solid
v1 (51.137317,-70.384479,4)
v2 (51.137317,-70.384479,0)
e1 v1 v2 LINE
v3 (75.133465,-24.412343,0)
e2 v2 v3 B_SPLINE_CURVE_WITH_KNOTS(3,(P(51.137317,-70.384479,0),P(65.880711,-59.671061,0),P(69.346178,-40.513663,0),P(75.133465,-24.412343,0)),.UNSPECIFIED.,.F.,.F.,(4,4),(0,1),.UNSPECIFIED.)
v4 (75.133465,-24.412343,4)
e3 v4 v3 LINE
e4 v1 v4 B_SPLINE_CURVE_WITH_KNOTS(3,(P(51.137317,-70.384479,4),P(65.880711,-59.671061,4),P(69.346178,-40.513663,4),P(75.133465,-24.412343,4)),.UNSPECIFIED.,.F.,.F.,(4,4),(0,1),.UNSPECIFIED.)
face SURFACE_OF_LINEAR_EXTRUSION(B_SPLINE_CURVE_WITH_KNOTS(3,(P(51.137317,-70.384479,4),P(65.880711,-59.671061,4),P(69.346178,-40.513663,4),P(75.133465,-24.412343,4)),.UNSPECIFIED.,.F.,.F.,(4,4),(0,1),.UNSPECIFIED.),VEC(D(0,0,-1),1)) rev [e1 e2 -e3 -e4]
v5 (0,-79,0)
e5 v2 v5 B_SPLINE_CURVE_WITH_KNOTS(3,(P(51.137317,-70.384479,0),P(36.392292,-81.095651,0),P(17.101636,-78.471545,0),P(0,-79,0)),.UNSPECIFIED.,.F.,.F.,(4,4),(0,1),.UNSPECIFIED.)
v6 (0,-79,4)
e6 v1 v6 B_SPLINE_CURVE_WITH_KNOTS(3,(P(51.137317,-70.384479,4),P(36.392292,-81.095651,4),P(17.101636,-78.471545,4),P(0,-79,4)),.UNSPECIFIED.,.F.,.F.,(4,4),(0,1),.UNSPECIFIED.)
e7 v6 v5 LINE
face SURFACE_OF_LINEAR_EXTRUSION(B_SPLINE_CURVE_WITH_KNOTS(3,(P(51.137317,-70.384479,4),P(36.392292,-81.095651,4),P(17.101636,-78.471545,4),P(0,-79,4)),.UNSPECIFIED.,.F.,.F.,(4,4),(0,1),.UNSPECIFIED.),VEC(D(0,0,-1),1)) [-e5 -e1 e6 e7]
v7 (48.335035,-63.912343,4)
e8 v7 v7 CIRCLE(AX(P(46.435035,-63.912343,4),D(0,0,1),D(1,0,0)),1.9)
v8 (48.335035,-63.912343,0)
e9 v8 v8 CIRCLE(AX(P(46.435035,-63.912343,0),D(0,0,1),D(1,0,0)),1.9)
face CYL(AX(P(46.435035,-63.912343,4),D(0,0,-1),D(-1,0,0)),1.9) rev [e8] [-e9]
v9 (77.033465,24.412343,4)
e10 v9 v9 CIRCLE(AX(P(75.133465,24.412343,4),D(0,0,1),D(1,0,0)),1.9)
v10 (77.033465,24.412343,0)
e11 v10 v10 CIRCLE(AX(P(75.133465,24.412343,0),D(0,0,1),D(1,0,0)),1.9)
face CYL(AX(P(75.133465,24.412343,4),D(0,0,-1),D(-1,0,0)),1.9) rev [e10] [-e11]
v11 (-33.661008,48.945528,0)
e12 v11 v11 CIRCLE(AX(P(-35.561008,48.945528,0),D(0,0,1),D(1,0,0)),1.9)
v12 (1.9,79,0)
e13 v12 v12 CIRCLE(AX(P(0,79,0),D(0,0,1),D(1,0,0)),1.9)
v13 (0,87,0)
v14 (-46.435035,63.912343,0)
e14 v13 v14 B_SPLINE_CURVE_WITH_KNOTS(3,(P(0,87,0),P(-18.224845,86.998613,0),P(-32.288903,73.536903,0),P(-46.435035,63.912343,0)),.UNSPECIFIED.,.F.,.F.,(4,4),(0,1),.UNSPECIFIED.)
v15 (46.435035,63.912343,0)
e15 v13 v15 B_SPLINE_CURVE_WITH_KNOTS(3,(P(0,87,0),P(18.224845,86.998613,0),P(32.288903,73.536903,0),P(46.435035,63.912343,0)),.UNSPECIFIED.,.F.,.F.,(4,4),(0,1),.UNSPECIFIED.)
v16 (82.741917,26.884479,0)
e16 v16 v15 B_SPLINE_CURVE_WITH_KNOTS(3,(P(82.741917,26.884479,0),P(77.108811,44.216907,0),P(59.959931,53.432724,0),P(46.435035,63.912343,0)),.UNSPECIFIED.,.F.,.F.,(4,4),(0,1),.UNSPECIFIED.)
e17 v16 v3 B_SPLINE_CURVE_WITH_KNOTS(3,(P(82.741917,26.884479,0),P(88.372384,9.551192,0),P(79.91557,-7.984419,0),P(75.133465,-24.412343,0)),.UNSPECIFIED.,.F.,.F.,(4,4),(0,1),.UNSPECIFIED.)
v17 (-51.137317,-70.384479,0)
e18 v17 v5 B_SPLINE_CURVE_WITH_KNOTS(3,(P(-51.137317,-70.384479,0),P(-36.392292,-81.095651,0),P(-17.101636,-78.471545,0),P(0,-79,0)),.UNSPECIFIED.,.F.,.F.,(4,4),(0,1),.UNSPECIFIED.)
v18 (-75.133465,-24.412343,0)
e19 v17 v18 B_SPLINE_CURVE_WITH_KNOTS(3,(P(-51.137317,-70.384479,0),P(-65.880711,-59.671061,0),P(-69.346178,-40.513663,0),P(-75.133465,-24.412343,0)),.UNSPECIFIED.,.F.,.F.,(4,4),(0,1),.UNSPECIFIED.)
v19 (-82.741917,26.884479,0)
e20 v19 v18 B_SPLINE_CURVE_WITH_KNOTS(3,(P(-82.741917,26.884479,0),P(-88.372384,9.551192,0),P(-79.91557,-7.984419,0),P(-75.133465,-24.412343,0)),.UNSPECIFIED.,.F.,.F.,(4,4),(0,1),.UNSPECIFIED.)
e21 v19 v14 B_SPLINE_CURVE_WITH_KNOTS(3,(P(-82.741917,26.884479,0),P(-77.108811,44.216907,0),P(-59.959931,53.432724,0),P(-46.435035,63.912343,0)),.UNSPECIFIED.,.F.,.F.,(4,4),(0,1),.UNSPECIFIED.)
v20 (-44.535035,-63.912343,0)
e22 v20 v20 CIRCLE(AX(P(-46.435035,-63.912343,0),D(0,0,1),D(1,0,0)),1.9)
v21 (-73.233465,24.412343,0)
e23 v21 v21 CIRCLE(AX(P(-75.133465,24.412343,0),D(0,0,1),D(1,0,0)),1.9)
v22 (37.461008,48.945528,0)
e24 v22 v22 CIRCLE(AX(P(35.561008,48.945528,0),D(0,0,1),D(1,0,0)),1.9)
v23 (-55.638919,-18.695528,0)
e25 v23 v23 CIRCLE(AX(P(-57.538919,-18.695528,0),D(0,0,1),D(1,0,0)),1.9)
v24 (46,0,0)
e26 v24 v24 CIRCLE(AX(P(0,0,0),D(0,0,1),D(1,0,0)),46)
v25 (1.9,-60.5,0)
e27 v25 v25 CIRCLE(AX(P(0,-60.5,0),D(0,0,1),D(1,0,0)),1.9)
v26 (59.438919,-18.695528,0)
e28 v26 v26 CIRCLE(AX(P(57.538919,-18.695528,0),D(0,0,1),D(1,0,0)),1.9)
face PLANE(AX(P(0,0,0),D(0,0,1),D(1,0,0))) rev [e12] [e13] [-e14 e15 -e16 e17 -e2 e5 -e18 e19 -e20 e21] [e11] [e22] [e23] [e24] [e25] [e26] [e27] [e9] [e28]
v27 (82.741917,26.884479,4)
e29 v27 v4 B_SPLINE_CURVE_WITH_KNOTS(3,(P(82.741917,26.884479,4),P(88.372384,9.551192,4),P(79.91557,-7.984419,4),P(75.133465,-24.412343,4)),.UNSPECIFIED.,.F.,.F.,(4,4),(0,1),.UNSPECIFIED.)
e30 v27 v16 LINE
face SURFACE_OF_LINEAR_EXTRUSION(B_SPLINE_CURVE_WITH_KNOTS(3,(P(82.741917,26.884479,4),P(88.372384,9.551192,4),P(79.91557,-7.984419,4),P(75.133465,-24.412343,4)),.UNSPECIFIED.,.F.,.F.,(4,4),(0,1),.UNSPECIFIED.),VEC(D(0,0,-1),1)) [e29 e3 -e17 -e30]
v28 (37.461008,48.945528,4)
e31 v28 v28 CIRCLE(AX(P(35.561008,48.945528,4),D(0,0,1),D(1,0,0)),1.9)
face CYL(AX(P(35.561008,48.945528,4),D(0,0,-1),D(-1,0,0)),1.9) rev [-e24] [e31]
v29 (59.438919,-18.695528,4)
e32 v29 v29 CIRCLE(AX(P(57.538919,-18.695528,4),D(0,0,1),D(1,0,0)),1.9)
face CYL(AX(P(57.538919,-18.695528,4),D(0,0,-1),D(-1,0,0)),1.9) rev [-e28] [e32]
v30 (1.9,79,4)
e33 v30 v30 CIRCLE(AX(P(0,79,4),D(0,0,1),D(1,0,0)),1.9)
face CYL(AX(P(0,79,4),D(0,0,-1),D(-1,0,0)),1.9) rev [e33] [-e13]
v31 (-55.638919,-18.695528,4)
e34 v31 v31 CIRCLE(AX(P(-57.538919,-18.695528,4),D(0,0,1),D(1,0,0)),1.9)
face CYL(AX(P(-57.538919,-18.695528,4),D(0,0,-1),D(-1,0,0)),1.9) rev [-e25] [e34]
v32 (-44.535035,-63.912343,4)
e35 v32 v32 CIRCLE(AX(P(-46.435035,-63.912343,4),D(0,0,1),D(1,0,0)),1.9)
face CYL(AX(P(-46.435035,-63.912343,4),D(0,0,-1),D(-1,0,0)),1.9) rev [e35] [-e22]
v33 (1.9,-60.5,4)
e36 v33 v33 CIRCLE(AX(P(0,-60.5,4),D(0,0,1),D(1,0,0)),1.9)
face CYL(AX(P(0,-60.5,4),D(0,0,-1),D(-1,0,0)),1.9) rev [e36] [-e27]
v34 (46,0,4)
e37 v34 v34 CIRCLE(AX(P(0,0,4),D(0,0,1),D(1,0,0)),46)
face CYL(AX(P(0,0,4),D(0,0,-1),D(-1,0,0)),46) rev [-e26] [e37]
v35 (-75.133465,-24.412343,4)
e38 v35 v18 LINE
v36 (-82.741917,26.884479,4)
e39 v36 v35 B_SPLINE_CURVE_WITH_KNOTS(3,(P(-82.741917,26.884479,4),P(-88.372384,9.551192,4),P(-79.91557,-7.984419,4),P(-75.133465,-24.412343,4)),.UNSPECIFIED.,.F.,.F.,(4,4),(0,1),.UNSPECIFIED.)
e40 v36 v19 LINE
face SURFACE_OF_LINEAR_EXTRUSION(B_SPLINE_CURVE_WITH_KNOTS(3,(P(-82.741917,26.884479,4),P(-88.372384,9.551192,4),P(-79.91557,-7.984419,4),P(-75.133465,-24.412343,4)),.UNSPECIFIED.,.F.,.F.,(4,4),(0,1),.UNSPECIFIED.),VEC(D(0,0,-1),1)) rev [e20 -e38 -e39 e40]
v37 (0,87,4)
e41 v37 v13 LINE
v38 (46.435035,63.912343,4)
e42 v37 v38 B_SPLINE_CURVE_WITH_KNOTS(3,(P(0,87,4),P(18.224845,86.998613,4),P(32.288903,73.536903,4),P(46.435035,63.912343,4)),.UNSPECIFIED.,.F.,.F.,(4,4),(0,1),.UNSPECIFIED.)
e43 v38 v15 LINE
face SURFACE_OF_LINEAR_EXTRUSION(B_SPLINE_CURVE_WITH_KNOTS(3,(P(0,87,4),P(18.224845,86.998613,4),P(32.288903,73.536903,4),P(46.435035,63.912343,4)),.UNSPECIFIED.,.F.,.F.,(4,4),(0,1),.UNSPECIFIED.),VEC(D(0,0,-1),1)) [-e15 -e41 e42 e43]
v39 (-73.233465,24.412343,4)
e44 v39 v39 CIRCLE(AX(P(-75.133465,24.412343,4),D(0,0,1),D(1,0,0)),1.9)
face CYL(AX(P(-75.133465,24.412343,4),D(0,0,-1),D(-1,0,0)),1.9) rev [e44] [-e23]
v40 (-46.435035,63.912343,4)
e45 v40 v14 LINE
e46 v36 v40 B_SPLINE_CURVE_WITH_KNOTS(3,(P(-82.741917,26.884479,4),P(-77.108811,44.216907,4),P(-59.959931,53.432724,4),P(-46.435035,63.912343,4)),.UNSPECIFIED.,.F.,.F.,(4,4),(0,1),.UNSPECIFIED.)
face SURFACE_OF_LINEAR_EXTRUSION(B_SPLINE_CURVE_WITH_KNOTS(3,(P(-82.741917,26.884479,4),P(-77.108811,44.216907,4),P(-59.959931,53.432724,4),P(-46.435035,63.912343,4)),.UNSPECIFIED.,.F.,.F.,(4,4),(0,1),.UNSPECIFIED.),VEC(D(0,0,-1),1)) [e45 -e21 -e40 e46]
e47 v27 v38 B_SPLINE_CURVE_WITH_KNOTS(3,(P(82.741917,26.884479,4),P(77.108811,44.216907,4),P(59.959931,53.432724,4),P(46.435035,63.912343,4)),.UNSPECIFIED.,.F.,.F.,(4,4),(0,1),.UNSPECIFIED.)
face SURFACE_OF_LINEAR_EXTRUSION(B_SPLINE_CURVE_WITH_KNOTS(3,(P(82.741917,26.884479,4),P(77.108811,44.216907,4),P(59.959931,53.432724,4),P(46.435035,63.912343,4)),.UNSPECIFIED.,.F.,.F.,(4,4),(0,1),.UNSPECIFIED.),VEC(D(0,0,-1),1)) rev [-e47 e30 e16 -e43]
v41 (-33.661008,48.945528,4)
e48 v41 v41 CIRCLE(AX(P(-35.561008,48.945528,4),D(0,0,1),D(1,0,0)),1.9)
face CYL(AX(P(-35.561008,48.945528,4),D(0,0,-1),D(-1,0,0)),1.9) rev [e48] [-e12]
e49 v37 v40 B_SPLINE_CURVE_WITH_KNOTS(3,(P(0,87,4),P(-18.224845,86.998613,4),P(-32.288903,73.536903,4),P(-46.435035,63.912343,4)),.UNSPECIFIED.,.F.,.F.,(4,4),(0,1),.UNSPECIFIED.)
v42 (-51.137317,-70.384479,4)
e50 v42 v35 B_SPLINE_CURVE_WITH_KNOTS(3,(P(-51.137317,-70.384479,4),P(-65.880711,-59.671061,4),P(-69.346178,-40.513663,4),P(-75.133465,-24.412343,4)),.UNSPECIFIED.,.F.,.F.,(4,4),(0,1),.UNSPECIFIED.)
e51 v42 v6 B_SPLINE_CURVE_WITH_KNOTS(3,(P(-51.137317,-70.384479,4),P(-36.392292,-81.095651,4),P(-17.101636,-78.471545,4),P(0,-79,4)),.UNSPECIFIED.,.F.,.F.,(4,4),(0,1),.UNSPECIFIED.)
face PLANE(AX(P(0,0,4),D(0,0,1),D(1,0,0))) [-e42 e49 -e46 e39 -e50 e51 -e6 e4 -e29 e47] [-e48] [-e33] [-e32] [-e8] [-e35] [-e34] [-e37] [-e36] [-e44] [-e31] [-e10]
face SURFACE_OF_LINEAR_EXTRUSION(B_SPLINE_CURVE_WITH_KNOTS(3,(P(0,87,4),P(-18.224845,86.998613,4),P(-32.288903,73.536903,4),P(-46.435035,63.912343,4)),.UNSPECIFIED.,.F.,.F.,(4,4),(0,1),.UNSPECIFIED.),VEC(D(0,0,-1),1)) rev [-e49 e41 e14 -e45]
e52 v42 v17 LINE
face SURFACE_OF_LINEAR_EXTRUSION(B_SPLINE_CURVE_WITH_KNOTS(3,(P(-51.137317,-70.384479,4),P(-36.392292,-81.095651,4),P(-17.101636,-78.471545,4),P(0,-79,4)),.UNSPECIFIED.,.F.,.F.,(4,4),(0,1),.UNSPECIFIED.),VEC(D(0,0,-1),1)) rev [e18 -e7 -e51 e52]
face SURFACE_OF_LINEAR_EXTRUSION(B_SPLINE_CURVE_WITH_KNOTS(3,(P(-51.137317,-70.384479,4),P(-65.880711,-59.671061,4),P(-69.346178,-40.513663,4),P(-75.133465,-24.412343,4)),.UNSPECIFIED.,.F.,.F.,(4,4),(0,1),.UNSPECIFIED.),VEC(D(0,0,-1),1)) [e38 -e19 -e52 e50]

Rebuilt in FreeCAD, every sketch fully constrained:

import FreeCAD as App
import Part
import Sketcher

doc = App.newDocument("Part")
body = doc.addObject("PartDesign::Body", "Body")

sketch1 = doc.addObject("Sketcher::SketchObject", "Sketch")
body.addObject(sketch1)
sketch1.AttachmentSupport = (doc.XY_Plane, [""])
sketch1.MapMode = "FlatFace"
sketch1.addGeometry([
    Part.BSplineCurve([App.Vector(0, 87, 0), App.Vector(18.224845, 86.998613, 0), App.Vector(32.288903, 73.536903, 0), App.Vector(46.435035, 63.912343, 0)], [4, 4], [0, 1], False, 3, [1, 1, 1, 1], False),
    Part.BSplineCurve([App.Vector(0, 87, 0), App.Vector(-18.224845, 86.998613, 0), App.Vector(-32.288903, 73.536903, 0), App.Vector(-46.435035, 63.912343, 0)], [4, 4], [0, 1], False, 3, [1, 1, 1, 1], False),
    Part.BSplineCurve([App.Vector(-82.741917, 26.884479, 0), App.Vector(-77.108811, 44.216907, 0), App.Vector(-59.959931, 53.432724, 0), App.Vector(-46.435035, 63.912343, 0)], [4, 4], [0, 1], False, 3, [1, 1, 1, 1], False),
    Part.BSplineCurve([App.Vector(-82.741917, 26.884479, 0), App.Vector(-88.372384, 9.551192, 0), App.Vector(-79.91557, -7.984419, 0), App.Vector(-75.133465, -24.412343, 0)], [4, 4], [0, 1], False, 3, [1, 1, 1, 1], False),
    Part.BSplineCurve([App.Vector(-51.137317, -70.384479, 0), App.Vector(-65.880711, -59.671061, 0), App.Vector(-69.346178, -40.513663, 0), App.Vector(-75.133465, -24.412343, 0)], [4, 4], [0, 1], False, 3, [1, 1, 1, 1], False),
    Part.BSplineCurve([App.Vector(-51.137317, -70.384479, 0), App.Vector(-36.392292, -81.095651, 0), App.Vector(-17.101636, -78.471545, 0), App.Vector(0, -79, 0)], [4, 4], [0, 1], False, 3, [1, 1, 1, 1], False),
    Part.BSplineCurve([App.Vector(51.137317, -70.384479, 0), App.Vector(36.392292, -81.095651, 0), App.Vector(17.101636, -78.471545, 0), App.Vector(0, -79, 0)], [4, 4], [0, 1], False, 3, [1, 1, 1, 1], False),
    Part.BSplineCurve([App.Vector(51.137317, -70.384479, 0), App.Vector(65.880711, -59.671061, 0), App.Vector(69.346178, -40.513663, 0), App.Vector(75.133465, -24.412343, 0)], [4, 4], [0, 1], False, 3, [1, 1, 1, 1], False),
    Part.BSplineCurve([App.Vector(82.741917, 26.884479, 0), App.Vector(88.372384, 9.551192, 0), App.Vector(79.91557, -7.984419, 0), App.Vector(75.133465, -24.412343, 0)], [4, 4], [0, 1], False, 3, [1, 1, 1, 1], False),
    Part.BSplineCurve([App.Vector(82.741917, 26.884479, 0), App.Vector(77.108811, 44.216907, 0), App.Vector(59.959931, 53.432724, 0), App.Vector(46.435035, 63.912343, 0)], [4, 4], [0, 1], False, 3, [1, 1, 1, 1], False),
    Part.Circle(App.Vector(46.435035, -63.912343, 0), App.Vector(0, 0, 1), 1.9),
    Part.Circle(App.Vector(57.538919, -18.695528, 0), App.Vector(0, 0, 1), 1.9),
    Part.Circle(App.Vector(0, 0, 0), App.Vector(0, 0, 1), 46),
    Part.Circle(App.Vector(0, -60.5, 0), App.Vector(0, 0, 1), 1.9),
    Part.Circle(App.Vector(-46.435035, -63.912343, 0), App.Vector(0, 0, 1), 1.9),
    Part.Circle(App.Vector(-57.538919, -18.695528, 0), App.Vector(0, 0, 1), 1.9),
    Part.Circle(App.Vector(75.133465, 24.412343, 0), App.Vector(0, 0, 1), 1.9),
    Part.Circle(App.Vector(35.561008, 48.945528, 0), App.Vector(0, 0, 1), 1.9),
    Part.Circle(App.Vector(-75.133465, 24.412343, 0), App.Vector(0, 0, 1), 1.9),
    Part.Circle(App.Vector(-35.561008, 48.945528, 0), App.Vector(0, 0, 1), 1.9),
    Part.Circle(App.Vector(0, 79, 0), App.Vector(0, 0, 1), 1.9),
], False)
sketch1.addConstraint([
    Sketcher.Constraint("Block", 0),
    Sketcher.Constraint("Block", 1),
    Sketcher.Constraint("Block", 2),
    Sketcher.Constraint("Block", 3),
    Sketcher.Constraint("Block", 4),
    Sketcher.Constraint("Block", 5),
    Sketcher.Constraint("Block", 6),
    Sketcher.Constraint("Block", 7),
    Sketcher.Constraint("Block", 8),
    Sketcher.Constraint("Block", 9),
    Sketcher.Constraint("Coincident", 12, 3, -1, 1),
    Sketcher.Constraint("Equal", 10, 11),
    Sketcher.Constraint("Equal", 11, 13),
    Sketcher.Constraint("Equal", 13, 14),
    Sketcher.Constraint("Equal", 14, 15),
    Sketcher.Constraint("Equal", 15, 16),
    Sketcher.Constraint("Equal", 16, 17),
    Sketcher.Constraint("Equal", 17, 18),
    Sketcher.Constraint("Equal", 18, 19),
    Sketcher.Constraint("Equal", 19, 20),
    Sketcher.Constraint("Symmetric", 10, 3, 14, 3, -2),
    Sketcher.Constraint("Symmetric", 11, 3, 15, 3, -2),
    Sketcher.Constraint("Symmetric", 16, 3, 18, 3, -2),
    Sketcher.Constraint("Symmetric", 17, 3, 19, 3, -2),
    Sketcher.Constraint("PointOnObject", 13, 3, -2),
    Sketcher.Constraint("PointOnObject", 20, 3, -2),
    Sketcher.Constraint("Diameter", 12, 92.0),
    Sketcher.Constraint("Diameter", 10, 3.8),
    Sketcher.Constraint("DistanceY", -1, 1, 20, 3, 79.0),
    Sketcher.Constraint("DistanceY", 13, 3, -1, 1, 60.5),
    Sketcher.Constraint("DistanceX", -1, 1, 11, 3, 57.538919),
    Sketcher.Constraint("DistanceY", 11, 3, -1, 1, 18.695528),
    Sketcher.Constraint("DistanceY", -1, 1, 17, 3, 48.945528),
    Sketcher.Constraint("DistanceX", 14, 3, 10, 3, 92.87007),
    Sketcher.Constraint("DistanceY", 11, 3, 16, 3, 43.107871),
    Sketcher.Constraint("DistanceX", 10, 3, 16, 3, 28.69843),
    Sketcher.Constraint("DistanceX", 17, 3, 11, 3, 21.977911),
    Sketcher.Constraint("DistanceY", 10, 3, 17, 3, 112.857871),
])
pad1 = doc.addObject("PartDesign::Pad", "Pad")
body.addObject(pad1)
pad1.Profile = sketch1
pad1.Length = 4

doc.recompute()
